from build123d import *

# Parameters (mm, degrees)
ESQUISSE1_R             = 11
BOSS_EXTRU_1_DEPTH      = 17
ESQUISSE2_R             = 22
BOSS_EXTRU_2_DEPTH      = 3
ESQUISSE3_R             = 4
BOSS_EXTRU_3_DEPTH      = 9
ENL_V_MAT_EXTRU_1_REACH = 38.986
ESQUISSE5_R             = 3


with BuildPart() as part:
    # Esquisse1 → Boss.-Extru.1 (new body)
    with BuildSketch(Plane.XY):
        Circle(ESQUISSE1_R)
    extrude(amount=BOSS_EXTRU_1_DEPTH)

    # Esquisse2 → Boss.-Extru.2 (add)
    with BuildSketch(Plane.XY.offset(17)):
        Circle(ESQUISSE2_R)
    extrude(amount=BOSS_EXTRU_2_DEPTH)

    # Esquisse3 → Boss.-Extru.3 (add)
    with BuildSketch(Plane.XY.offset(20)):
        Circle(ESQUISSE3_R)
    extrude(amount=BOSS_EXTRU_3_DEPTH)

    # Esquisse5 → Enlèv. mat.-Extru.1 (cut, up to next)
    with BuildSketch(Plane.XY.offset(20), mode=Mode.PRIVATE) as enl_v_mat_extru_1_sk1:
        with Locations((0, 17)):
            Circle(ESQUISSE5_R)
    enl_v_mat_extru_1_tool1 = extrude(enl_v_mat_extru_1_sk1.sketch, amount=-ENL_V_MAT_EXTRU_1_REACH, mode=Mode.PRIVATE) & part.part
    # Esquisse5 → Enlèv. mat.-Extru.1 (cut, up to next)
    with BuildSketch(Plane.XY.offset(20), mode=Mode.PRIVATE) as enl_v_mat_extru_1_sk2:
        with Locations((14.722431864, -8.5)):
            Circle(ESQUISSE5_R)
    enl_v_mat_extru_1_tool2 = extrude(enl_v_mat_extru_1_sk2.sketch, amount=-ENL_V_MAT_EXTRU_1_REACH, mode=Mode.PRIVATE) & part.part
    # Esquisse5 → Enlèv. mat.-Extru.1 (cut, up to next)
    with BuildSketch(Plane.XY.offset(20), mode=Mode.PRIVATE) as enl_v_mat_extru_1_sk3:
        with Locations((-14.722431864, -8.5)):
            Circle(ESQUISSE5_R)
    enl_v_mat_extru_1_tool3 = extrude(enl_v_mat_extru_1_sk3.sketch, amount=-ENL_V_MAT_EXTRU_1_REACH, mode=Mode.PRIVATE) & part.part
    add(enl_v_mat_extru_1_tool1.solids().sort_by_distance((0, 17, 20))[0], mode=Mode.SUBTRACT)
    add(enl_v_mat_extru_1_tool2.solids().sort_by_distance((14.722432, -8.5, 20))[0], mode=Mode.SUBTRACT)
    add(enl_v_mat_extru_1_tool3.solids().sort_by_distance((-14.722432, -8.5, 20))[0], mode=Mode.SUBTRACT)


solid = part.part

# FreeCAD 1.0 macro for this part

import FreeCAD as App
import Part
import Sketcher

V = App.Vector

doc = App.newDocument("Part")
body = doc.addObject("PartDesign::Body", "Body")

# Sketch on XY plane
sketch1 = body.newObject("Sketcher::SketchObject", "Sketch")
sketch1.AttachmentSupport = (doc.getObject("XY_Plane"), [""])
sketch1.MapMode = "FlatFace"
sketch1.addGeometry(Part.Circle(V(0, 0, 0), V(0, 0, 1), 11), False)
sketch1.addConstraint([
    Sketcher.Constraint("Coincident", 0, 3, -1, 1),
    Sketcher.Constraint("Diameter", 0, 22.0),
])
pad1 = body.newObject("PartDesign::Pad", "Pad")
pad1.Profile = sketch1
pad1.Length = 17

# Sketch on XY plane
sketch2 = body.newObject("Sketcher::SketchObject", "Sketch001")
sketch2.AttachmentSupport = (doc.getObject("XY_Plane"), [""])
sketch2.MapMode = "FlatFace"
sketch2.AttachmentOffset = App.Placement(V(0, 0, 17), App.Rotation())
sketch2.addGeometry(Part.Circle(V(0, 0, 0), V(0, 0, 1), 22), False)
sketch2.addConstraint([
    Sketcher.Constraint("Coincident", 0, 3, -1, 1),
    Sketcher.Constraint("Diameter", 0, 44.0),
])
pad2 = body.newObject("PartDesign::Pad", "Pad001")
pad2.Profile = sketch2
pad2.Length = 3

# Sketch on XY plane
sketch3 = body.newObject("Sketcher::SketchObject", "Sketch002")
sketch3.AttachmentSupport = (doc.getObject("XY_Plane"), [""])
sketch3.MapMode = "FlatFace"
sketch3.AttachmentOffset = App.Placement(V(0, 0, 20), App.Rotation())
sketch3.addGeometry(Part.Circle(V(0, 0, 0), V(0, 0, 1), 4), False)
sketch3.addConstraint([
    Sketcher.Constraint("Coincident", 0, 3, -1, 1),
    Sketcher.Constraint("Diameter", 0, 8.0),
])
pad3 = body.newObject("PartDesign::Pad", "Pad002")
pad3.Profile = sketch3
pad3.Length = 9

# Sketch on XY plane
sketch4 = body.newObject("Sketcher::SketchObject", "Sketch003")
sketch4.AttachmentSupport = (doc.getObject("XY_Plane"), [""])
sketch4.MapMode = "FlatFace"
sketch4.AttachmentOffset = App.Placement(V(0, 0, 20), App.Rotation())
sketch4.addGeometry(Part.Circle(V(0, 17, 0), V(0, 0, 1), 3), False)
sketch4.addConstraint([
    Sketcher.Constraint("PointOnObject", 0, 3, -2),
    Sketcher.Constraint("Diameter", 0, 6.0),
    Sketcher.Constraint("DistanceY", -1, 1, 0, 3, 17.0),
])
pocket1 = body.newObject("PartDesign::Pocket", "Pocket")
pocket1.Profile = sketch4
pocket1.Type = "UpToFirst"

# Sketch on XY plane
sketch5 = body.newObject("Sketcher::SketchObject", "Sketch004")
sketch5.AttachmentSupport = (doc.getObject("XY_Plane"), [""])
sketch5.MapMode = "FlatFace"
sketch5.AttachmentOffset = App.Placement(V(0, 0, 20), App.Rotation())
sketch5.addGeometry(Part.Circle(V(14.7, -8.5, 0), V(0, 0, 1), 3), False)
sketch5.addConstraint([
    Sketcher.Constraint("Diameter", 0, 6.0),
    Sketcher.Constraint("DistanceY", 0, 3, -1, 1, 8.5),
    Sketcher.Constraint("DistanceX", -1, 1, 0, 3, 14.722432),
])
pocket2 = body.newObject("PartDesign::Pocket", "Pocket001")
pocket2.Profile = sketch5
pocket2.Type = "UpToFirst"

# Sketch on XY plane
sketch6 = body.newObject("Sketcher::SketchObject", "Sketch005")
sketch6.AttachmentSupport = (doc.getObject("XY_Plane"), [""])
sketch6.MapMode = "FlatFace"
sketch6.AttachmentOffset = App.Placement(V(0, 0, 20), App.Rotation())
sketch6.addGeometry(Part.Circle(V(-14.7, -8.5, 0), V(0, 0, 1), 3), False)
sketch6.addConstraint([
    Sketcher.Constraint("Diameter", 0, 6.0),
    Sketcher.Constraint("DistanceY", 0, 3, -1, 1, 8.5),
    Sketcher.Constraint("DistanceX", 0, 3, -1, 1, 14.722432),
])
pocket3 = body.newObject("PartDesign::Pocket", "Pocket002")
pocket3.Profile = sketch6
pocket3.Type = "UpToFirst"

doc.recompute()
